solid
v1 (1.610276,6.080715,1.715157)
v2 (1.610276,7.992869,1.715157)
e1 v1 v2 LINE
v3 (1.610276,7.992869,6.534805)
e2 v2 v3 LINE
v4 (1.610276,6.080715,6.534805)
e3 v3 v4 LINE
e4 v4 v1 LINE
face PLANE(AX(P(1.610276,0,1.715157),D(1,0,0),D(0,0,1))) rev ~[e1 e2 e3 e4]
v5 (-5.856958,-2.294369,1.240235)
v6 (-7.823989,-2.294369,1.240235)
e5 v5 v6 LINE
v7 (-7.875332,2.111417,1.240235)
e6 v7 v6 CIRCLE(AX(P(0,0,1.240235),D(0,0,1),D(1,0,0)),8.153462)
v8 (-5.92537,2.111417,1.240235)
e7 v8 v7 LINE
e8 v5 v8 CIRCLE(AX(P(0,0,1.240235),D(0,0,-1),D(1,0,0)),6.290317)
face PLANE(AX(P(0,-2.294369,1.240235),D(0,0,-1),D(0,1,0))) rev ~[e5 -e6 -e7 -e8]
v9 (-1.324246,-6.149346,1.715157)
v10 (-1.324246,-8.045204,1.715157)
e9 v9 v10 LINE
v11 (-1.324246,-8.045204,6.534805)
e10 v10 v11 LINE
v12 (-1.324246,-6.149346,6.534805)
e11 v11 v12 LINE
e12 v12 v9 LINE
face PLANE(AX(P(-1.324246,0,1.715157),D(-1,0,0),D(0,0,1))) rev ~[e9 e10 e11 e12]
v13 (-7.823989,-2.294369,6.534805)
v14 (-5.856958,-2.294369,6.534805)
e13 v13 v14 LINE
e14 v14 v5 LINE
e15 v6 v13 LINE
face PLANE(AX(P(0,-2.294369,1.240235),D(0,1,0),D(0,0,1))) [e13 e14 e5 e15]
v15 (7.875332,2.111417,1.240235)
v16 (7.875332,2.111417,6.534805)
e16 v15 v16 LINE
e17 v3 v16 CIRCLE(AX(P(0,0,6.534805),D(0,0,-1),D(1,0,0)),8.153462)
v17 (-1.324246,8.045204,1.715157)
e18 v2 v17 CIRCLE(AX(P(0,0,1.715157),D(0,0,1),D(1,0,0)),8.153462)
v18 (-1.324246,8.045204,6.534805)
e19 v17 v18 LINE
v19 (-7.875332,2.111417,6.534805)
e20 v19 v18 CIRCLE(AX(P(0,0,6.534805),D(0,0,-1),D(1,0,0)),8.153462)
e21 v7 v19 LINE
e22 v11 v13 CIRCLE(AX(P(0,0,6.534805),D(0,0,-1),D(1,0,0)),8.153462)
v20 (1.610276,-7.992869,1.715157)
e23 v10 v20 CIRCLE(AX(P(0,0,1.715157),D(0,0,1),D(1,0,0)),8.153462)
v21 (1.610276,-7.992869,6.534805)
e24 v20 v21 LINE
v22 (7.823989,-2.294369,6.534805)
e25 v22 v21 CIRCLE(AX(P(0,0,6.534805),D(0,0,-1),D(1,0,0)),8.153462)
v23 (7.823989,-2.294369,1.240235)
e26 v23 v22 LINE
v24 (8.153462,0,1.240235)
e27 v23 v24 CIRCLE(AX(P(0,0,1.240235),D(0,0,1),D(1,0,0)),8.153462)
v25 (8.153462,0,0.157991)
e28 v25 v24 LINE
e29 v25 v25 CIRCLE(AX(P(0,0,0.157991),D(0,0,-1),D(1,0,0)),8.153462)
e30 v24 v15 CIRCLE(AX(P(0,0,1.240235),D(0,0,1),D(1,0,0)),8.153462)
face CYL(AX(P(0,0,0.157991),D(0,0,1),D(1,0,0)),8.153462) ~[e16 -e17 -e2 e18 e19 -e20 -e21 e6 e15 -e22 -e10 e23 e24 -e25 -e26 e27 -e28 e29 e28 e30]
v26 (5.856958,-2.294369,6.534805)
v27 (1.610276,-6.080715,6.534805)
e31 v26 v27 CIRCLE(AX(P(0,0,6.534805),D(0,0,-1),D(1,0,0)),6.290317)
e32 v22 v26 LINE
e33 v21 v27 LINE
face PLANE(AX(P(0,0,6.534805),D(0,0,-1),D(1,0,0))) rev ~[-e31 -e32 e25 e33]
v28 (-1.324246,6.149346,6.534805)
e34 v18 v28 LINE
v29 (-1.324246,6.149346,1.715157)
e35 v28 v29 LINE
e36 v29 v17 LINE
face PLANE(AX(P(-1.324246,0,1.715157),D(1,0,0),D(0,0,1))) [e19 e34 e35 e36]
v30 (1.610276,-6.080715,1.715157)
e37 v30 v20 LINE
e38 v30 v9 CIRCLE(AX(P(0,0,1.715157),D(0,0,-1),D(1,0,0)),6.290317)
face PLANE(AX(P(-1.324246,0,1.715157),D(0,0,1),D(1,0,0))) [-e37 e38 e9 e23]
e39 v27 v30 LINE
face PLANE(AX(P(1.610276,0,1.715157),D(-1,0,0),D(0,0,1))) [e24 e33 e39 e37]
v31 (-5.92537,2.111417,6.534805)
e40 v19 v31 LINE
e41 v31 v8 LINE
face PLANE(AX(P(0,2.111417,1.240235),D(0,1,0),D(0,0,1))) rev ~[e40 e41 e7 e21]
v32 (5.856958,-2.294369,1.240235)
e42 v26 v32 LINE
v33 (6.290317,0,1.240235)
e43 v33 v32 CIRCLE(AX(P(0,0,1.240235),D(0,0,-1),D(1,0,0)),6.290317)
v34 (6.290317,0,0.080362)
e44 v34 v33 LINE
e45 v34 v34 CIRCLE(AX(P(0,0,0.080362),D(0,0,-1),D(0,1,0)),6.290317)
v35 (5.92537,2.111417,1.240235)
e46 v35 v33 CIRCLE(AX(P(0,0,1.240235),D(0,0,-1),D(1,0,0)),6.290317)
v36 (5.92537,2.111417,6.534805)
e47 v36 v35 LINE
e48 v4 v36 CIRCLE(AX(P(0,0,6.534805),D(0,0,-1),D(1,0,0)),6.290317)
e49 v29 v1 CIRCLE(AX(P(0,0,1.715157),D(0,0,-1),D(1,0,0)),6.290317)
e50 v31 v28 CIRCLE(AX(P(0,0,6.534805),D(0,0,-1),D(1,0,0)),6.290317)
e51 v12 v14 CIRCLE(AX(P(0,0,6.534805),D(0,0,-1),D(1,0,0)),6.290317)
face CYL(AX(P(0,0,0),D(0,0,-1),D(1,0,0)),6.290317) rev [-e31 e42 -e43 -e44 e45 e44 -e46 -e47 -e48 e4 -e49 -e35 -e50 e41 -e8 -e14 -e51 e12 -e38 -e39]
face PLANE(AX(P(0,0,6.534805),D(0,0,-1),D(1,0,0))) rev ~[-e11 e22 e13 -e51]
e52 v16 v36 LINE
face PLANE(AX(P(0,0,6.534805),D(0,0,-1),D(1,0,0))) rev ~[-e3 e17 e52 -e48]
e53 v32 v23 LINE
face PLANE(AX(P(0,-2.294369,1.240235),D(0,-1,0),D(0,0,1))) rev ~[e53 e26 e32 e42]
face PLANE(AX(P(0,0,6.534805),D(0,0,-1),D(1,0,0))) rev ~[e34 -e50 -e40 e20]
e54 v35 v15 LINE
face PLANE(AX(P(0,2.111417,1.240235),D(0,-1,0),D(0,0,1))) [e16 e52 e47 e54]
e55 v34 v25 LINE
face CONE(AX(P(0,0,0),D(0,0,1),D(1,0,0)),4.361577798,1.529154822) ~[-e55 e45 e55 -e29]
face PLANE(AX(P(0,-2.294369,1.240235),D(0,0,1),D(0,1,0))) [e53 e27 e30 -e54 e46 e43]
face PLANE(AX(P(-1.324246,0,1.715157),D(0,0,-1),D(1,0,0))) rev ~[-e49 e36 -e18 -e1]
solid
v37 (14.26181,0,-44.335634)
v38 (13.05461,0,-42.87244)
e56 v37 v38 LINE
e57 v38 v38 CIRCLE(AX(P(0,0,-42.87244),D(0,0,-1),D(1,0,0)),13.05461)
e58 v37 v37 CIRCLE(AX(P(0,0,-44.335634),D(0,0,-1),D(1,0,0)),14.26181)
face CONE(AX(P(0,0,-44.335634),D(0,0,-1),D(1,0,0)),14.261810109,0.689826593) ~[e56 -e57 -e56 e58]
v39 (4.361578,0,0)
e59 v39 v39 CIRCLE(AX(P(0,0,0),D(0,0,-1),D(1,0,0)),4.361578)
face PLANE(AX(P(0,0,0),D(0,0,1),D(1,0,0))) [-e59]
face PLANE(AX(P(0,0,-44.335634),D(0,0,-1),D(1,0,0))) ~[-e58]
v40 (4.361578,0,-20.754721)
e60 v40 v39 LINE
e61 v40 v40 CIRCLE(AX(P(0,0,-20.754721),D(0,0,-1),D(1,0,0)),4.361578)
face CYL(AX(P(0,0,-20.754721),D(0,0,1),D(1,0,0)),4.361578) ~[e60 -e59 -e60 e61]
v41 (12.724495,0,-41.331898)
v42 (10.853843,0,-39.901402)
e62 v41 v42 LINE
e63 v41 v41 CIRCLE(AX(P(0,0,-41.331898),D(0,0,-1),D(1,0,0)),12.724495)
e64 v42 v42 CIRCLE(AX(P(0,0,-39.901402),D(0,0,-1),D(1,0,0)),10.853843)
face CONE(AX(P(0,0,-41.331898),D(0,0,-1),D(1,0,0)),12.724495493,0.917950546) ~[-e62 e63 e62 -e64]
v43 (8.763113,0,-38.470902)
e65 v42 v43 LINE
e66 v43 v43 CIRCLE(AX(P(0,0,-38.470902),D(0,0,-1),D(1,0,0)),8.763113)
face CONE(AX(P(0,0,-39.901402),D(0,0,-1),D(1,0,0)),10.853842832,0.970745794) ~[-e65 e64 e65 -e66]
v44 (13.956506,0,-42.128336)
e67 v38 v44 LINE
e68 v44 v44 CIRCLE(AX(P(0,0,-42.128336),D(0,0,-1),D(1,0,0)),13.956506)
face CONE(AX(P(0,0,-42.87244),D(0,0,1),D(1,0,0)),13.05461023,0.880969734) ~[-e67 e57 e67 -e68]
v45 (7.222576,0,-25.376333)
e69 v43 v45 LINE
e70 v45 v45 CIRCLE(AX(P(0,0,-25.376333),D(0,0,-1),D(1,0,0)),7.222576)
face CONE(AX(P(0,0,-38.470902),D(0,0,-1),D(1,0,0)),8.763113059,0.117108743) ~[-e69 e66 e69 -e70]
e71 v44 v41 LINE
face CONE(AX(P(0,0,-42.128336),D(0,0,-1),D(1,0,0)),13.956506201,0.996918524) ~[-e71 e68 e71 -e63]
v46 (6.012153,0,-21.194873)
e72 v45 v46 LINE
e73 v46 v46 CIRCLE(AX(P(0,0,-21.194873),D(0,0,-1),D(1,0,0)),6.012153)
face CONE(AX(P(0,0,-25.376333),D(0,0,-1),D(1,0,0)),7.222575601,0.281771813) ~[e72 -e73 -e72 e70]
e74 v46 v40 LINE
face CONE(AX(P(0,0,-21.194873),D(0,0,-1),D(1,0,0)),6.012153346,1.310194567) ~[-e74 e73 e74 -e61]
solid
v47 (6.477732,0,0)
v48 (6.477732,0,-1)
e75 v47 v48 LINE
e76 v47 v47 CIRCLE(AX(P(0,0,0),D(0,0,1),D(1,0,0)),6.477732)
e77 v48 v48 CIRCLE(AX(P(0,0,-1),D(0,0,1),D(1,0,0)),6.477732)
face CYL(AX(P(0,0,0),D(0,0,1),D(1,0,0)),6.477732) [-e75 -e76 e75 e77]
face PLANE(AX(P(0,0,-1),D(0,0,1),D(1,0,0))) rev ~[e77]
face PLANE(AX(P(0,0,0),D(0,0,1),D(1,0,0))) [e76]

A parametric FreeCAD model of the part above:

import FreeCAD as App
import Part
import Sketcher
from FreeCAD import Vector
Q = App.Units.Quantity

doc = App.newDocument("Part")
body = doc.addObject("PartDesign::Body", "Body")
body.AllowCompound = True

# Sketch on XZ plane
sketch1 = doc.addObject("Sketcher::SketchObject", "Sketch")
body.addObject(sketch1)
sketch1.AttachmentSupport = (doc.XZ_Plane, [""])
sketch1.MapMode = "FlatFace"
sketch1.addGeometry([
    Part.LineSegment(Vector(0, 6.6, 0), Vector(0, -44.3, 0)),  # 0
    Part.LineSegment(Vector(0, -44.3, 0), Vector(14.3, -44.3, 0)),  # 1
    Part.LineSegment(Vector(14.3, -44.3, 0), Vector(13.1, -42.9, 0)),  # 2
    Part.LineSegment(Vector(13.1, -42.9, 0), Vector(14, -42.1, 0)),  # 3
    Part.LineSegment(Vector(14, -42.1, 0), Vector(12.7, -41.3, 0)),  # 4
    Part.LineSegment(Vector(12.7, -41.3, 0), Vector(10.9, -39.9, 0)),  # 5
    Part.LineSegment(Vector(10.9, -39.9, 0), Vector(8.8, -38.5, 0)),  # 6
    Part.LineSegment(Vector(8.8, -38.5, 0), Vector(7.2, -25.4, 0)),  # 7
    Part.LineSegment(Vector(7.2, -25.4, 0), Vector(6, -21.2, 0)),  # 8
    Part.LineSegment(Vector(6, -21.2, 0), Vector(4.4, -20.8, 0)),  # 9
    Part.LineSegment(Vector(4.4, -20.8, 0), Vector(4.4, 0, 0)),  # 10
    Part.LineSegment(Vector(4.4, 0, 0), Vector(8.2, 0.2, 0)),  # 11
    Part.LineSegment(Vector(8.2, 0.2, 0), Vector(8.2, 6.5, 0)),  # 12
    Part.LineSegment(Vector(8.2, 6.5, 0), Vector(4.8, 6.5, 0)),  # 13
    Part.LineSegment(Vector(4.8, 6.5, 0), Vector(4.8, 2.9, 0)),  # 14
    Part.LineSegment(Vector(4.8, 2.9, 0), Vector(1.8, 2.9, 0)),  # 15
    Part.LineSegment(Vector(1.8, 2.9, 0), Vector(1.7, 6.6, 0)),  # 16
    Part.LineSegment(Vector(1.7, 6.6, 0), Vector(0, 6.6, 0)),  # 17
], False)
sketch1.addConstraint([
    Sketcher.Constraint("Coincident", 0, 2, 1, 1),
    Sketcher.Constraint("Coincident", 1, 2, 2, 1),
    Sketcher.Constraint("Coincident", 2, 2, 3, 1),
    Sketcher.Constraint("Coincident", 3, 2, 4, 1),
    Sketcher.Constraint("Coincident", 4, 2, 5, 1),
    Sketcher.Constraint("Coincident", 5, 2, 6, 1),
    Sketcher.Constraint("Coincident", 6, 2, 7, 1),
    Sketcher.Constraint("Coincident", 7, 2, 8, 1),
    Sketcher.Constraint("Coincident", 8, 2, 9, 1),
    Sketcher.Constraint("Coincident", 9, 2, 10, 1),
    Sketcher.Constraint("Coincident", 10, 2, 11, 1),
    Sketcher.Constraint("Coincident", 11, 2, 12, 1),
    Sketcher.Constraint("Coincident", 12, 2, 13, 1),
    Sketcher.Constraint("Coincident", 13, 2, 14, 1),
    Sketcher.Constraint("Coincident", 14, 2, 15, 1),
    Sketcher.Constraint("Coincident", 15, 2, 16, 1),
    Sketcher.Constraint("Coincident", 16, 2, 17, 1),
    Sketcher.Constraint("Coincident", 17, 2, 0, 1),
    Sketcher.Constraint("Vertical", 0),
    Sketcher.Constraint("Horizontal", 1),
    Sketcher.Constraint("Vertical", 10),
    Sketcher.Constraint("Vertical", 12),
    Sketcher.Constraint("Horizontal", 13),
    Sketcher.Constraint("Vertical", 14),
    Sketcher.Constraint("Horizontal", 15),
    Sketcher.Constraint("PointOnObject", 0, 2, -2),
    Sketcher.Constraint("PointOnObject", 10, 2, -1),
    Sketcher.Constraint("Perpendicular", 2, 3),
    Sketcher.Constraint("Perpendicular", 16, 17),
    Sketcher.Constraint("Distance", 17, Q("1.721402 mm")),
    Sketcher.Constraint("DistanceX", 1, 1, 1, 2, Q("14.26181 mm")),
    Sketcher.Constraint("DistanceX", 13, 2, 13, 1, Q("3.351729 mm")),
    Sketcher.Constraint("DistanceY", 0, 2, 0, 1, Q("50.929869 mm")),
    Sketcher.Constraint("DistanceY", 10, 1, 10, 2, Q("20.754721 mm")),
    Sketcher.Constraint("DistanceY", 4, 2, -1, 1, Q("41.331898 mm")),
    Sketcher.Constraint("DistanceY", 5, 2, -1, 1, Q("39.901402 mm")),
    Sketcher.Constraint("DistanceY", 6, 2, -1, 1, Q("38.470902 mm")),
    Sketcher.Constraint("DistanceX", 2, 2, 1, 2, Q("1.2072 mm")),
    Sketcher.Constraint("Distance", 2, Q("1.89691 mm")),
    Sketcher.Constraint("Distance", 8, Q("4.353128 mm")),
    Sketcher.Constraint("DistanceX", 15, 2, 15, 1, Q("2.971037 mm")),
    Sketcher.Constraint("DistanceY", 12, 1, 12, 2, Q("6.376814 mm")),
    Sketcher.Constraint("DistanceY", 14, 2, 14, 1, Q("3.631267 mm")),
    Sketcher.Constraint("DistanceY", 2, 2, -1, 1, Q("42.87244 mm")),
    Sketcher.Constraint("DistanceX", -1, 1, 11, 2, Q("8.153462 mm")),
    Sketcher.Constraint("DistanceY", -1, 1, 11, 2, Q("0.157991 mm")),
    Sketcher.Constraint("DistanceX", 4, 2, 3, 2, Q("1.232011 mm")),
    Sketcher.Constraint("DistanceX", 6, 2, 5, 2, Q("2.09073 mm")),
    Sketcher.Constraint("DistanceY", 6, 2, 7, 2, Q("13.094569 mm")),
    Sketcher.Constraint("DistanceX", 7, 2, 4, 2, Q("5.50192 mm")),
    Sketcher.Constraint("DistanceY", 7, 2, 8, 2, Q("4.18146 mm")),
    Sketcher.Constraint("DistanceX", 8, 2, 6, 2, Q("2.75096 mm")),
    Sketcher.Constraint("DistanceX", 8, 2, 11, 2, Q("2.141309 mm")),
    Sketcher.Constraint("DistanceX", 15, 2, 10, 2, Q("2.530882 mm")),
])
revolution = doc.addObject("PartDesign::Revolution", "Revolution")
body.addObject(revolution)
revolution.Profile = sketch1
revolution.ReferenceAxis = (sketch1, ["V_Axis"])
revolution.Angle = 360

# Sketch on XY plane
sketch2 = doc.addObject("Sketcher::SketchObject", "Sketch001")
body.addObject(sketch2)
sketch2.AttachmentSupport = (doc.XY_Plane, [""])
sketch2.MapMode = "FlatFace"
sketch2.addGeometry(Part.Circle(Vector(0, 0, 0), Vector(0, 0, 1), 6), False)
sketch2.addConstraint([
    Sketcher.Constraint("Coincident", 0, 3, -1, 1),
    Sketcher.Constraint("Diameter", 0, Q("12.580634 mm")),
])
pocket1 = doc.addObject("PartDesign::Pocket", "Pocket")
body.addObject(pocket1)
pocket1.Profile = sketch2
pocket1.Length = 25
pocket1.Reversed = True

# Sketch on XZ plane
sketch3 = doc.addObject("Sketcher::SketchObject", "Sketch002")
body.addObject(sketch3)
sketch3.AttachmentSupport = (doc.XZ_Plane, [""])
sketch3.MapMode = "FlatFace"
sketch3.addGeometry([
    Part.LineSegment(Vector(-1.3, 6.6, 0), Vector(-1.3, 1.7, 0)),
    Part.LineSegment(Vector(-1.3, 1.7, 0), Vector(1.6, 1.7, 0)),
    Part.LineSegment(Vector(1.6, 1.7, 0), Vector(1.6, 6.6, 0)),
    Part.LineSegment(Vector(1.6, 6.6, 0), Vector(-1.3, 6.6, 0)),
], False)
sketch3.addConstraint([
    Sketcher.Constraint("Coincident", 0, 2, 1, 1),
    Sketcher.Constraint("Coincident", 1, 2, 2, 1),
    Sketcher.Constraint("Coincident", 2, 2, 3, 1),
    Sketcher.Constraint("Coincident", 3, 2, 0, 1),
    Sketcher.Constraint("Vertical", 0),
    Sketcher.Constraint("Horizontal", 1),
    Sketcher.Constraint("Vertical", 2),
    Sketcher.Constraint("Horizontal", 3),
    Sketcher.Constraint("DistanceY", 0, 2, 0, 1, Q("4.864071 mm")),
    Sketcher.Constraint("DistanceX", 1, 1, 1, 2, Q("2.934522 mm")),
    Sketcher.Constraint("DistanceY", -1, 1, 2, 2, Q("6.579229 mm")),
    Sketcher.Constraint("DistanceX", 0, 2, -1, 1, Q("1.324246 mm")),
])
pocket2 = doc.addObject("PartDesign::Pocket", "Pocket001")
body.addObject(pocket2)
pocket2.Profile = sketch3
pocket2.Type = "ThroughAll"
pocket2.Midplane = True

# Sketch on YZ plane
sketch4 = doc.addObject("Sketcher::SketchObject", "Sketch003")
body.addObject(sketch4)
sketch4.AttachmentSupport = (doc.YZ_Plane, [""])
sketch4.MapMode = "FlatFace"
sketch4.addGeometry([
    Part.LineSegment(Vector(-2.3, 6.7, 0), Vector(-2.3, 1.2, 0)),
    Part.LineSegment(Vector(-2.3, 1.2, 0), Vector(2.1, 1.2, 0)),
    Part.LineSegment(Vector(2.1, 1.2, 0), Vector(2.1, 6.7, 0)),
    Part.LineSegment(Vector(2.1, 6.7, 0), Vector(-2.3, 6.7, 0)),
], False)
sketch4.addConstraint([
    Sketcher.Constraint("Coincident", 0, 2, 1, 1),
    Sketcher.Constraint("Coincident", 1, 2, 2, 1),
    Sketcher.Constraint("Coincident", 2, 2, 3, 1),
    Sketcher.Constraint("Coincident", 3, 2, 0, 1),
    Sketcher.Constraint("Vertical", 0),
    Sketcher.Constraint("Horizontal", 1),
    Sketcher.Constraint("Vertical", 2),
    Sketcher.Constraint("Horizontal", 3),
    Sketcher.Constraint("DistanceY", -1, 1, 2, 2, Q("6.697402 mm")),
    Sketcher.Constraint("DistanceX", 1, 1, 1, 2, Q("4.405786 mm")),
    Sketcher.Constraint("DistanceY", 0, 2, 0, 1, Q("5.457167 mm")),
    Sketcher.Constraint("DistanceX", 0, 2, -1, 1, Q("2.294369 mm")),
])
pocket3 = doc.addObject("PartDesign::Pocket", "Pocket002")
body.addObject(pocket3)
pocket3.Profile = sketch4
pocket3.Type = "ThroughAll"
pocket3.Midplane = True
body2 = doc.addObject("PartDesign::Body", "Body001")

# Sketch on XY plane
sketch5 = doc.addObject("Sketcher::SketchObject", "Sketch004")
body2.addObject(sketch5)
sketch5.AttachmentSupport = (doc.getObject("XY_Plane001"), [""])
sketch5.MapMode = "FlatFace"
sketch5.addGeometry(Part.Circle(Vector(0, 0, 0), Vector(0, 0, 1), 6), False)
sketch5.addConstraint([
    Sketcher.Constraint("Coincident", 0, 3, -1, 1),
    Sketcher.Constraint("Diameter", 0, Q("12.955465 mm")),
])
pad1 = doc.addObject("PartDesign::Pad", "Pad")
body2.addObject(pad1)
pad1.Profile = sketch5
pad1.Length = 1
pad1.Reversed = True

doc.recompute()
